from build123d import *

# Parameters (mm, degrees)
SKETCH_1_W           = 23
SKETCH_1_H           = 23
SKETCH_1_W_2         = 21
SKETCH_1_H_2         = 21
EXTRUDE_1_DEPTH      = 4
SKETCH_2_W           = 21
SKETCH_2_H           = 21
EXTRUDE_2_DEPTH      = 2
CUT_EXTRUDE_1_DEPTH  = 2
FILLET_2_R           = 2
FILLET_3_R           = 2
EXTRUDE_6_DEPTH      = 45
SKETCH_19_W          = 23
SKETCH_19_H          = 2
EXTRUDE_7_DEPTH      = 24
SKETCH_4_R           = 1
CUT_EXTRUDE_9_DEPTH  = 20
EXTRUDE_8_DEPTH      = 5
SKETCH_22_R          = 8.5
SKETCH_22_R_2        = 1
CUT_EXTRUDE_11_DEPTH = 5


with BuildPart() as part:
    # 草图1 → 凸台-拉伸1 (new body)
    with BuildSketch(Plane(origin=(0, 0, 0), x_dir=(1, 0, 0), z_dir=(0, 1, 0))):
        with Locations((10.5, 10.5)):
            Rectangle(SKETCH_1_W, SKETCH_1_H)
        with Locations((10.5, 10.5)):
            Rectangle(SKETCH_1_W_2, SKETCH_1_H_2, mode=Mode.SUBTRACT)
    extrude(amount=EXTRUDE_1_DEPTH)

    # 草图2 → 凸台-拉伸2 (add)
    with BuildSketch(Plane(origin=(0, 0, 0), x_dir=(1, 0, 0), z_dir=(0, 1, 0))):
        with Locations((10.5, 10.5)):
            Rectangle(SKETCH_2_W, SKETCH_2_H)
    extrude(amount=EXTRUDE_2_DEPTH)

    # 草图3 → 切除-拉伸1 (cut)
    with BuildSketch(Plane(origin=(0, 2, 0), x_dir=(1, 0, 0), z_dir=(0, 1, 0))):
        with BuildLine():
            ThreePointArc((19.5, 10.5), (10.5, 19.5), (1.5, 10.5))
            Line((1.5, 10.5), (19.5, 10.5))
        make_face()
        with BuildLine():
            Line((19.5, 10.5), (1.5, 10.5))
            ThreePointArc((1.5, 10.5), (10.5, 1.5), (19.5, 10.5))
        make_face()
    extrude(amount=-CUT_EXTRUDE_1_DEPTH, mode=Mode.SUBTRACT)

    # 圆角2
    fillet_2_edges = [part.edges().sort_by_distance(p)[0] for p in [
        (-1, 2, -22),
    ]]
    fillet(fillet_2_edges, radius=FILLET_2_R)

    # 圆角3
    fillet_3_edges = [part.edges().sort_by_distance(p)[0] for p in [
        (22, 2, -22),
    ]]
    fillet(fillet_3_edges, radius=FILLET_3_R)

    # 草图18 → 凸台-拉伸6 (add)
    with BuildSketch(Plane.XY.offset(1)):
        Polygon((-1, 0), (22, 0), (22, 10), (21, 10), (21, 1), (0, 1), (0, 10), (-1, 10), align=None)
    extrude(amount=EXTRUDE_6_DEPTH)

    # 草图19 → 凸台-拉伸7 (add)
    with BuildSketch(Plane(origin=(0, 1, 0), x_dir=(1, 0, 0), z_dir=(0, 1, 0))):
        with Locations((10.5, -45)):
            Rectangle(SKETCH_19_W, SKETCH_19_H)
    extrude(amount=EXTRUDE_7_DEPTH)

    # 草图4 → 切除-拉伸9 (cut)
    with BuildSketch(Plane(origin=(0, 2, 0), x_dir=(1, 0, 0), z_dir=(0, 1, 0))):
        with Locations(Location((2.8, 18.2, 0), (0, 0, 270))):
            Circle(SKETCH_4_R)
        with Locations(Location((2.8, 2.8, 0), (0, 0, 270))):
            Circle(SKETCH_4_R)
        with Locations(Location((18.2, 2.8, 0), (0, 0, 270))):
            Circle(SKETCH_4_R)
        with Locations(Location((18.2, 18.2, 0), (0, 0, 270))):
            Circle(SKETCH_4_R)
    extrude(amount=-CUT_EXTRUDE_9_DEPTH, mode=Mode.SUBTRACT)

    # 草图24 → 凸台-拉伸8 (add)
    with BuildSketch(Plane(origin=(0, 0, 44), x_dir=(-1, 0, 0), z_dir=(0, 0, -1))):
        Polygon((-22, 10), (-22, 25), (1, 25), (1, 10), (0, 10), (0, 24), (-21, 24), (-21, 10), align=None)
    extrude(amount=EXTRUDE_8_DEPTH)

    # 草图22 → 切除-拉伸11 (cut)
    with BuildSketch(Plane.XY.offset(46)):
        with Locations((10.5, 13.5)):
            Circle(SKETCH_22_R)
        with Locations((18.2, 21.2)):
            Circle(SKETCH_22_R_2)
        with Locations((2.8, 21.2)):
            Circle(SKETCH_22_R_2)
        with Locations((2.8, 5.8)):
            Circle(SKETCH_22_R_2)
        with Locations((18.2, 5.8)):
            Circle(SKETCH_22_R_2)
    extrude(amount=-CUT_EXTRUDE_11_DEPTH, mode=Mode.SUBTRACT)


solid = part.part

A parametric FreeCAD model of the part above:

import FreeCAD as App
import Part
import Sketcher
from FreeCAD import Vector


def edges_at(feature, points):
    """Names of the edges that pass closest to the given points."""
    edges = feature.Shape.Edges
    near = lambda p: min(range(len(edges)), key=lambda i: edges[i].distToShape(Part.Vertex(*p))[0])
    return sorted({f"Edge{near(p) + 1}" for p in points})


def add_polygon(sketch, points):
    """Adds a closed chain of lines whose ends are joined by coincident constraints."""
    first, n = sketch.GeometryCount, len(points)
    for a, b in zip(points, points[1:] + points[:1]):
        sketch.addGeometry(Part.LineSegment(App.Vector(*a, 0), App.Vector(*b, 0)), False)
    for i in range(n):
        sketch.addConstraint(Sketcher.Constraint("Coincident", first + i, 2, first + (i + 1) % n, 1))

doc = App.newDocument("Part")
params = doc.addObject("Spreadsheet::Sheet", "Params")
for row, (alias, value) in enumerate([
    ("sketch1_width", "23 mm"),
    ("sketch1_width2", "21 mm"),
    ("pad1_length", "4 mm"),
    ("sketch2_width", "21 mm"),
    ("pad2_length", "2 mm"),
    ("sketch3_diameter", "18 mm"),
    ("pocket1_length", "2 mm"),
    ("fillet_radius", "2 mm"),
    ("fillet2_radius", "2 mm"),
    ("sketch4_width", "23 mm"),
    ("sketch4_width2", "1 mm"),
    ("sketch4_height", "10 mm"),
    ("sketch4_height2", "9 mm"),
    ("pad3_length", "45 mm"),
    ("sketch5_width", "23 mm"),
    ("sketch5_height", "2 mm"),
    ("pad4_length", "24 mm"),
    ("sketch6_diameter", "2 mm"),
    ("pocket2_length", "20 mm"),
    ("sketch7_width", "1 mm"),
    ("sketch7_width2", "21 mm"),
    ("sketch7_height", "15 mm"),
    ("sketch7_height2", "14 mm"),
    ("pad5_length", "5 mm"),
    ("sketch8_diameter", "17 mm"),
    ("sketch8_diameter2", "2 mm"),
    ("pocket3_length", "5 mm"),
], start=1):
    params.set(f"A{row}", alias)
    params.set(f"B{row}", "=" + value)
    params.setAlias(f"B{row}", alias)

body = doc.addObject("PartDesign::Body", "Body")

# Sketch on XZ plane
sketch1 = body.newObject("Sketcher::SketchObject", "Sketch")
sketch1.AttachmentSupport = (doc.getObject("XZ_Plane"), [""])
sketch1.MapMode = "FlatFace"
add_polygon(sketch1, [(-1, -22), (-1, 1), (22, 1), (22, -22)])  # lines 0-3
add_polygon(sketch1, [(21, 0), (0, 0), (0, -21), (21, -21)])  # lines 4-7
sketch1.addConstraint(Sketcher.Constraint("Vertical", 0))
sketch1.addConstraint(Sketcher.Constraint("Horizontal", 1))
sketch1.addConstraint(Sketcher.Constraint("Vertical", 2))
sketch1.addConstraint(Sketcher.Constraint("Horizontal", 3))
sketch1.addConstraint(Sketcher.Constraint("Horizontal", 4))
sketch1.addConstraint(Sketcher.Constraint("Vertical", 5))
sketch1.addConstraint(Sketcher.Constraint("Horizontal", 6))
sketch1.addConstraint(Sketcher.Constraint("Vertical", 7))
sketch1.addConstraint(Sketcher.Constraint("Coincident", 4, 2, -1, 1))
sketch1.addConstraint(Sketcher.Constraint("Equal", 3, 0))
sketch1.addConstraint(Sketcher.Constraint("Equal", 6, 5))
sketch1.addConstraint(Sketcher.Constraint("DistanceX", 1, 1, 1, 2, 23.0))
sketch1.addConstraint(Sketcher.Constraint("DistanceX", 4, 2, 4, 1, 21.0))
sketch1.addConstraint(Sketcher.Constraint("DistanceX", 0, 2, -1, 1, 1.0))
sketch1.addConstraint(Sketcher.Constraint("DistanceY", -1, 1, 0, 2, 1.0))
sketch1.setExpression("Constraints[19]", "Params.sketch1_width")
sketch1.setExpression("Constraints[20]", "Params.sketch1_width2")
pad1 = body.newObject("PartDesign::Pad", "Pad")
pad1.Profile = sketch1
pad1.setExpression("Length", "Params.pad1_length")
pad1.Reversed = True

# Sketch on XZ plane
sketch2 = body.newObject("Sketcher::SketchObject", "Sketch001")
sketch2.AttachmentSupport = (doc.getObject("XZ_Plane"), [""])
sketch2.MapMode = "FlatFace"
add_polygon(sketch2, [(0, -21), (0, 0), (21, 0), (21, -21)])  # lines 0-3
sketch2.addConstraint(Sketcher.Constraint("Vertical", 0))
sketch2.addConstraint(Sketcher.Constraint("Horizontal", 1))
sketch2.addConstraint(Sketcher.Constraint("Vertical", 2))
sketch2.addConstraint(Sketcher.Constraint("Horizontal", 3))
sketch2.addConstraint(Sketcher.Constraint("Coincident", 0, 2, -1, 1))
sketch2.addConstraint(Sketcher.Constraint("Equal", 3, 0))
sketch2.addConstraint(Sketcher.Constraint("DistanceX", 1, 1, 1, 2, 21.0))
sketch2.setExpression("Constraints[10]", "Params.sketch2_width")
pad2 = body.newObject("PartDesign::Pad", "Pad001")
pad2.Profile = sketch2
pad2.setExpression("Length", "Params.pad2_length")
pad2.Reversed = True

# Sketch on XZ plane
sketch3 = body.newObject("Sketcher::SketchObject", "Sketch002")
sketch3.AttachmentSupport = (doc.getObject("XZ_Plane"), [""])
sketch3.MapMode = "FlatFace"
sketch3.AttachmentOffset = App.Placement(Vector(0, 0, -2), App.Rotation())
sketch3.addGeometry(Part.Circle(Vector(10.5, -10.5, 0), Vector(0, 0, 1), 9), False)
sketch3.addConstraint(Sketcher.Constraint("Diameter", 0, 18.0))
sketch3.addConstraint(Sketcher.Constraint("DistanceX", -1, 1, 0, 3, 10.5))
sketch3.addConstraint(Sketcher.Constraint("DistanceY", 0, 3, -1, 1, 10.5))
sketch3.setExpression("Constraints[0]", "Params.sketch3_diameter")
pocket1 = body.newObject("PartDesign::Pocket", "Pocket")
pocket1.Profile = sketch3
pocket1.setExpression("Length", "Params.pocket1_length")
pocket1.Reversed = True
doc.recompute()

fillet = body.newObject("PartDesign::Fillet", "Fillet")
fillet.Base = (pocket1, edges_at(pocket1, [(-1, 2, -22)]))
fillet.setExpression("Radius", "Params.fillet_radius")
doc.recompute()

fillet2 = body.newObject("PartDesign::Fillet", "Fillet001")
fillet2.Base = (fillet, edges_at(fillet, [(22, 2, -22)]))
fillet2.setExpression("Radius", "Params.fillet2_radius")

# Sketch on XY plane
sketch4 = body.newObject("Sketcher::SketchObject", "Sketch003")
sketch4.AttachmentSupport = (doc.getObject("XY_Plane"), [""])
sketch4.MapMode = "FlatFace"
sketch4.AttachmentOffset = App.Placement(Vector(0, 0, 1), App.Rotation())
add_polygon(sketch4, [(-1, 0), (22, 0), (22, 10), (21, 10), (21, 1), (0, 1), (0, 10), (-1, 10)])  # lines 0-7
sketch4.addConstraint(Sketcher.Constraint("Horizontal", 0))
sketch4.addConstraint(Sketcher.Constraint("Vertical", 1))
sketch4.addConstraint(Sketcher.Constraint("Horizontal", 2))
sketch4.addConstraint(Sketcher.Constraint("Vertical", 3))
sketch4.addConstraint(Sketcher.Constraint("Horizontal", 4))
sketch4.addConstraint(Sketcher.Constraint("Vertical", 5))
sketch4.addConstraint(Sketcher.Constraint("Horizontal", 6))
sketch4.addConstraint(Sketcher.Constraint("Vertical", 7))
sketch4.addConstraint(Sketcher.Constraint("PointOnObject", 0, 2, -1))
sketch4.addConstraint(Sketcher.Constraint("PointOnObject", 4, 2, -2))
sketch4.addConstraint(Sketcher.Constraint("Horizontal", 2, 2, 5, 2))
sketch4.addConstraint(Sketcher.Constraint("Equal", 2, 6))
sketch4.addConstraint(Sketcher.Constraint("DistanceX", 0, 1, 0, 2, 23.0))
sketch4.addConstraint(Sketcher.Constraint("DistanceX", 2, 2, 2, 1, 1.0))
sketch4.addConstraint(Sketcher.Constraint("DistanceY", 1, 1, 1, 2, 10.0))
sketch4.addConstraint(Sketcher.Constraint("DistanceY", 3, 2, 3, 1, 9.0))
sketch4.setExpression("Constraints[20]", "Params.sketch4_width")
sketch4.setExpression("Constraints[21]", "Params.sketch4_width2")
sketch4.setExpression("Constraints[22]", "Params.sketch4_height")
sketch4.setExpression("Constraints[23]", "Params.sketch4_height2")
pad3 = body.newObject("PartDesign::Pad", "Pad002")
pad3.Profile = sketch4
pad3.setExpression("Length", "Params.pad3_length")

# Sketch on XZ plane
sketch5 = body.newObject("Sketcher::SketchObject", "Sketch004")
sketch5.AttachmentSupport = (doc.getObject("XZ_Plane"), [""])
sketch5.MapMode = "FlatFace"
sketch5.AttachmentOffset = App.Placement(Vector(0, 0, -1), App.Rotation())
add_polygon(sketch5, [(-1, 44), (-1, 46), (22, 46), (22, 44)])  # lines 0-3
sketch5.addConstraint(Sketcher.Constraint("Vertical", 0))
sketch5.addConstraint(Sketcher.Constraint("Horizontal", 1))
sketch5.addConstraint(Sketcher.Constraint("Vertical", 2))
sketch5.addConstraint(Sketcher.Constraint("Horizontal", 3))
sketch5.addConstraint(Sketcher.Constraint("DistanceX", 1, 1, 1, 2, 23.0))
sketch5.addConstraint(Sketcher.Constraint("DistanceY", 0, 1, 0, 2, 2.0))
sketch5.addConstraint(Sketcher.Constraint("DistanceX", 0, 2, -1, 1, 1.0))
sketch5.addConstraint(Sketcher.Constraint("DistanceY", -1, 1, 0, 2, 46.0))
sketch5.setExpression("Constraints[8]", "Params.sketch5_width")
sketch5.setExpression("Constraints[9]", "Params.sketch5_height")
pad4 = body.newObject("PartDesign::Pad", "Pad003")
pad4.Profile = sketch5
pad4.setExpression("Length", "Params.pad4_length")
pad4.Reversed = True

# Sketch on XZ plane
sketch6 = body.newObject("Sketcher::SketchObject", "Sketch005")
sketch6.AttachmentSupport = (doc.getObject("XZ_Plane"), [""])
sketch6.MapMode = "FlatFace"
sketch6.AttachmentOffset = App.Placement(Vector(0, 0, -2), App.Rotation())
sketch6.addGeometry(Part.Circle(Vector(2.8, -18.2, 0), Vector(0, 0, 1), 1), False)
sketch6.addGeometry(Part.Circle(Vector(2.8, -2.8, 0), Vector(0, 0, 1), 1), False)
sketch6.addGeometry(Part.Circle(Vector(18.2, -2.8, 0), Vector(0, 0, 1), 1), False)
sketch6.addGeometry(Part.Circle(Vector(18.2, -18.2, 0), Vector(0, 0, 1), 1), False)
sketch6.addConstraint(Sketcher.Constraint("Equal", 0, 1))
sketch6.addConstraint(Sketcher.Constraint("Equal", 1, 2))
sketch6.addConstraint(Sketcher.Constraint("Equal", 2, 3))
sketch6.addConstraint(Sketcher.Constraint("Horizontal", 1, 3, 2, 3))
sketch6.addConstraint(Sketcher.Constraint("Horizontal", 0, 3, 3, 3))
sketch6.addConstraint(Sketcher.Constraint("Vertical", 0, 3, 1, 3))
sketch6.addConstraint(Sketcher.Constraint("Vertical", 2, 3, 3, 3))
sketch6.addConstraint(Sketcher.Constraint("Diameter", 0, 2.0))
sketch6.addConstraint(Sketcher.Constraint("DistanceX", -1, 1, 0, 3, 2.8))
sketch6.addConstraint(Sketcher.Constraint("DistanceY", 0, 3, -1, 1, 18.2))
sketch6.addConstraint(Sketcher.Constraint("DistanceY", 1, 3, -1, 1, 2.8))
sketch6.addConstraint(Sketcher.Constraint("DistanceX", -1, 1, 2, 3, 18.2))
sketch6.setExpression("Constraints[7]", "Params.sketch6_diameter")
pocket2 = body.newObject("PartDesign::Pocket", "Pocket001")
pocket2.Profile = sketch6
pocket2.setExpression("Length", "Params.pocket2_length")
pocket2.Reversed = True

# Sketch on XY plane
sketch7 = body.newObject("Sketcher::SketchObject", "Sketch006")
sketch7.AttachmentSupport = (doc.getObject("XY_Plane"), [""])
sketch7.MapMode = "FlatFace"
sketch7.AttachmentOffset = App.Placement(Vector(0, 0, 44), App.Rotation())
add_polygon(sketch7, [(22, 25), (22, 10), (21, 10), (21, 24), (0, 24), (0, 10), (-1, 10), (-1, 25)])  # lines 0-7
sketch7.addConstraint(Sketcher.Constraint("Vertical", 0))
sketch7.addConstraint(Sketcher.Constraint("Horizontal", 1))
sketch7.addConstraint(Sketcher.Constraint("Vertical", 2))
sketch7.addConstraint(Sketcher.Constraint("Horizontal", 3))
sketch7.addConstraint(Sketcher.Constraint("Vertical", 4))
sketch7.addConstraint(Sketcher.Constraint("Horizontal", 5))
sketch7.addConstraint(Sketcher.Constraint("Vertical", 6))
sketch7.addConstraint(Sketcher.Constraint("Horizontal", 7))
sketch7.addConstraint(Sketcher.Constraint("PointOnObject", 3, 2, -2))
sketch7.addConstraint(Sketcher.Constraint("Horizontal", 1, 2, 4, 2))
sketch7.addConstraint(Sketcher.Constraint("Equal", 1, 5))
sketch7.addConstraint(Sketcher.Constraint("DistanceX", 1, 2, 1, 1, 1.0))
sketch7.addConstraint(Sketcher.Constraint("DistanceX", 3, 2, 3, 1, 21.0))
sketch7.addConstraint(Sketcher.Constraint("DistanceY", 0, 2, 0, 1, 15.0))
sketch7.addConstraint(Sketcher.Constraint("DistanceY", 2, 1, 2, 2, 14.0))
sketch7.addConstraint(Sketcher.Constraint("DistanceY", -1, 1, 0, 2, 10.0))
sketch7.setExpression("Constraints[19]", "Params.sketch7_width")
sketch7.setExpression("Constraints[20]", "Params.sketch7_width2")
sketch7.setExpression("Constraints[21]", "Params.sketch7_height")
sketch7.setExpression("Constraints[22]", "Params.sketch7_height2")
pad5 = body.newObject("PartDesign::Pad", "Pad004")
pad5.Profile = sketch7
pad5.setExpression("Length", "Params.pad5_length")
pad5.Reversed = True

# Sketch on XY plane
sketch8 = body.newObject("Sketcher::SketchObject", "Sketch007")
sketch8.AttachmentSupport = (doc.getObject("XY_Plane"), [""])
sketch8.MapMode = "FlatFace"
sketch8.AttachmentOffset = App.Placement(Vector(0, 0, 46), App.Rotation())
sketch8.addGeometry(Part.Circle(Vector(10.5, 13.5, 0), Vector(0, 0, 1), 8.5), False)
sketch8.addGeometry(Part.Circle(Vector(18.2, 21.2, 0), Vector(0, 0, 1), 1), False)
sketch8.addGeometry(Part.Circle(Vector(2.8, 21.2, 0), Vector(0, 0, 1), 1), False)
sketch8.addGeometry(Part.Circle(Vector(2.8, 5.8, 0), Vector(0, 0, 1), 1), False)
sketch8.addGeometry(Part.Circle(Vector(18.2, 5.8, 0), Vector(0, 0, 1), 1), False)
sketch8.addConstraint(Sketcher.Constraint("Equal", 1, 2))
sketch8.addConstraint(Sketcher.Constraint("Equal", 2, 3))
sketch8.addConstraint(Sketcher.Constraint("Equal", 3, 4))
sketch8.addConstraint(Sketcher.Constraint("Horizontal", 1, 3, 2, 3))
sketch8.addConstraint(Sketcher.Constraint("Horizontal", 3, 3, 4, 3))
sketch8.addConstraint(Sketcher.Constraint("Vertical", 2, 3, 3, 3))
sketch8.addConstraint(Sketcher.Constraint("Vertical", 1, 3, 4, 3))
sketch8.addConstraint(Sketcher.Constraint("Diameter", 0, 17.0))
sketch8.addConstraint(Sketcher.Constraint("Diameter", 1, 2.0))
sketch8.addConstraint(Sketcher.Constraint("DistanceX", -1, 1, 0, 3, 10.5))
sketch8.addConstraint(Sketcher.Constraint("DistanceY", -1, 1, 0, 3, 13.5))
sketch8.addConstraint(Sketcher.Constraint("DistanceX", -1, 1, 1, 3, 18.2))
sketch8.addConstraint(Sketcher.Constraint("DistanceY", -1, 1, 1, 3, 21.2))
sketch8.addConstraint(Sketcher.Constraint("DistanceX", -1, 1, 2, 3, 2.8))
sketch8.addConstraint(Sketcher.Constraint("DistanceY", -1, 1, 3, 3, 5.8))
sketch8.setExpression("Constraints[7]", "Params.sketch8_diameter")
sketch8.setExpression("Constraints[8]", "Params.sketch8_diameter2")
pocket3 = body.newObject("PartDesign::Pocket", "Pocket002")
pocket3.Profile = sketch8
pocket3.setExpression("Length", "Params.pocket3_length")

doc.recompute()
